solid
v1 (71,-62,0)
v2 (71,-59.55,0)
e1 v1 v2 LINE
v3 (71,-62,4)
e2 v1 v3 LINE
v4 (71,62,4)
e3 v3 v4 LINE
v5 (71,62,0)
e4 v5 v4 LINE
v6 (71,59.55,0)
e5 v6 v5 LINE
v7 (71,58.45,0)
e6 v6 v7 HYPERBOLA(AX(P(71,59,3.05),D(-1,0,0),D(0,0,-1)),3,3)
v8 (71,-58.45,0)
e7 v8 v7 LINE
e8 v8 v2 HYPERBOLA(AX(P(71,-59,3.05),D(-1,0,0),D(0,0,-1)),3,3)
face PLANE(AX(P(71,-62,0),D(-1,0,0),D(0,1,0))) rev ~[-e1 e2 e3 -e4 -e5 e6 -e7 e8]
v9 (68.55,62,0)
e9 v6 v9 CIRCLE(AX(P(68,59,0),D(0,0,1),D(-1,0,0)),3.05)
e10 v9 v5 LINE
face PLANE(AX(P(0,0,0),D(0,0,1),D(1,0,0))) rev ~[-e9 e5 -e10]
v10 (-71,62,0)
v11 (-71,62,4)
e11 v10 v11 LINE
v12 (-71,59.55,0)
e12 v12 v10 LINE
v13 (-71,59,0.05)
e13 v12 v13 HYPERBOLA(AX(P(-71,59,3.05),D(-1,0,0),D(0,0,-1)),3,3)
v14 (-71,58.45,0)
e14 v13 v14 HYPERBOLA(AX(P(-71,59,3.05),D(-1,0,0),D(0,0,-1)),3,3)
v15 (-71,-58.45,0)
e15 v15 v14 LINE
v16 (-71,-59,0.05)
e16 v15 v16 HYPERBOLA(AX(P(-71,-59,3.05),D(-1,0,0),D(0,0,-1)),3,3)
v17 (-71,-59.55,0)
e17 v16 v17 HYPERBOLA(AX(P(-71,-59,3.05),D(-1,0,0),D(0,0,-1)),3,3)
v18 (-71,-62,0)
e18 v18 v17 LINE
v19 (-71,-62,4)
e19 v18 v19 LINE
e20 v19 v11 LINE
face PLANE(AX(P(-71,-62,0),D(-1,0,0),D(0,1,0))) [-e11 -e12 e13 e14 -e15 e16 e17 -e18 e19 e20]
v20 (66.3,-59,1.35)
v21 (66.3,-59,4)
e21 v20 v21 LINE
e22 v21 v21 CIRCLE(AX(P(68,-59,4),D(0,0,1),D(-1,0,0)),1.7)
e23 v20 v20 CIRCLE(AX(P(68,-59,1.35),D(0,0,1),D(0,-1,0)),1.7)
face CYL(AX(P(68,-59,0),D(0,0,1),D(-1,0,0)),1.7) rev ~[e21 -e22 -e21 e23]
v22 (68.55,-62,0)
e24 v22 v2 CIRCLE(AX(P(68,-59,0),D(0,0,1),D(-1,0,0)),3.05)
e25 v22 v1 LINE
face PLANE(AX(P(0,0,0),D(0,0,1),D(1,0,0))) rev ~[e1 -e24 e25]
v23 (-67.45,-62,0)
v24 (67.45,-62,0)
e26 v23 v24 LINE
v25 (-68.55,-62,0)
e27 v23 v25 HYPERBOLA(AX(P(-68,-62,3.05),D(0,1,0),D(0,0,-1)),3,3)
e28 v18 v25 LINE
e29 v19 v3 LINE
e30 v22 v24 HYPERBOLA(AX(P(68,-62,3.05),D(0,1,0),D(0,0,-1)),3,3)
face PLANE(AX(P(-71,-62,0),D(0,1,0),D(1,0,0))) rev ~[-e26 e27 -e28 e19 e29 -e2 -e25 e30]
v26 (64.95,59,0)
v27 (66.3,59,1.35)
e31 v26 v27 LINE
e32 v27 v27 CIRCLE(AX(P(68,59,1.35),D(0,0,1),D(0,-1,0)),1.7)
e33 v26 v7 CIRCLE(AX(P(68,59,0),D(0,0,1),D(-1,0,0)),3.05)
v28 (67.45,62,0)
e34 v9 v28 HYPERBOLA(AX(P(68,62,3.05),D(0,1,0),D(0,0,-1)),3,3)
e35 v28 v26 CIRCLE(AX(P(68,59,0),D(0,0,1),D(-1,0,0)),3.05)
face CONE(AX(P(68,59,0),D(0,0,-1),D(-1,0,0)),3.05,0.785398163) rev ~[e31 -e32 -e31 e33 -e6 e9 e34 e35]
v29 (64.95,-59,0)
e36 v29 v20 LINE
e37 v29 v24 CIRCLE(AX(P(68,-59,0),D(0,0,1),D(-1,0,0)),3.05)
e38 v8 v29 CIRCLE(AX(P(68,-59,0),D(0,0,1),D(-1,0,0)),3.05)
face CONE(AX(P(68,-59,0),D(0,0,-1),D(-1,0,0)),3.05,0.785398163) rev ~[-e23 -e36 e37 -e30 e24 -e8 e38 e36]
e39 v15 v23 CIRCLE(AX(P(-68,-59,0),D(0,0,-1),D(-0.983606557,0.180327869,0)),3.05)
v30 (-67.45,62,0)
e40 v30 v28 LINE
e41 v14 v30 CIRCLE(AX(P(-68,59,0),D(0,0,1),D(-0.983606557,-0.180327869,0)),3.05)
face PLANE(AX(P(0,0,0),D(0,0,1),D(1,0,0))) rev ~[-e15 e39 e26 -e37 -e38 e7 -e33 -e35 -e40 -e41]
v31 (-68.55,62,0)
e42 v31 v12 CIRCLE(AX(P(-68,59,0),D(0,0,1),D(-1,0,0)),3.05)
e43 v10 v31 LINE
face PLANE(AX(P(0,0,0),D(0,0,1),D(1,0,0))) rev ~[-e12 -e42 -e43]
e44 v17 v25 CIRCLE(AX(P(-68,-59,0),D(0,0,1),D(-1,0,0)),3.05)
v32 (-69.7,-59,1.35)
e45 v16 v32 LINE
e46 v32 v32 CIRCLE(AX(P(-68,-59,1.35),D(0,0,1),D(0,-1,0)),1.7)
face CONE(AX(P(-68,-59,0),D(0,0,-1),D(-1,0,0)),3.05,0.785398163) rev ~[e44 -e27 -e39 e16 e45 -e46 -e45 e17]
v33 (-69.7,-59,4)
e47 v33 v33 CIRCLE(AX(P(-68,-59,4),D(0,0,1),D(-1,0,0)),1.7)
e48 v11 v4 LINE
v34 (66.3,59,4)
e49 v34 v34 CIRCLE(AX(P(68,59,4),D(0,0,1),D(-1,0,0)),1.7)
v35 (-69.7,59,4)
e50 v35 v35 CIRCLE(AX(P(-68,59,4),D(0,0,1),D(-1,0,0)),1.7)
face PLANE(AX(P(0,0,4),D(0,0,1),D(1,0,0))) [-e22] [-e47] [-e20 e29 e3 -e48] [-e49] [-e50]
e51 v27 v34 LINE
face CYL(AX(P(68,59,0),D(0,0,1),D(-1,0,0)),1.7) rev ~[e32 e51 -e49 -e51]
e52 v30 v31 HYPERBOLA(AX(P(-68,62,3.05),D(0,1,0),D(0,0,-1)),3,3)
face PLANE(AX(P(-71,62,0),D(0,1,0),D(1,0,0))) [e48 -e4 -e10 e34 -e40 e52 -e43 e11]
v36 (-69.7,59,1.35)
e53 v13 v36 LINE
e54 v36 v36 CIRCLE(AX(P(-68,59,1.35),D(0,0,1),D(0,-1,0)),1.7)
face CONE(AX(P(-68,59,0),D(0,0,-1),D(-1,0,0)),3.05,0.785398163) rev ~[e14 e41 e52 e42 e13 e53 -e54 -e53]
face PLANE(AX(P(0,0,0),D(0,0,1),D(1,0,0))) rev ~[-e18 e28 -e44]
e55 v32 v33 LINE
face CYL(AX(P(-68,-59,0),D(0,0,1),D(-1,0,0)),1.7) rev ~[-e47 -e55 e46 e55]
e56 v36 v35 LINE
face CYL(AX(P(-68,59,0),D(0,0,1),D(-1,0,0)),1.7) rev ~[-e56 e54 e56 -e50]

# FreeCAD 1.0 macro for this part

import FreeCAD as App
import Part
import Sketcher

V = App.Vector
Q = App.Units.Quantity


def add_polygon(sketch, points):
    """Adds a closed chain of lines whose ends are joined by coincident constraints."""
    first, n = sketch.GeometryCount, len(points)
    for a, b in zip(points, points[1:] + points[:1]):
        sketch.addGeometry(Part.LineSegment(App.Vector(*a, 0), App.Vector(*b, 0)), False)
    for i in range(n):
        sketch.addConstraint(Sketcher.Constraint("Coincident", first + i, 2, first + (i + 1) % n, 1))

doc = App.newDocument("Part")
body = doc.addObject("PartDesign::Body", "Body")

# Sketch on XY plane
sketch1 = doc.addObject("Sketcher::SketchObject", "Sketch")
body.addObject(sketch1)
sketch1.AttachmentSupport = (doc.XY_Plane, [""])
sketch1.MapMode = "FlatFace"
add_polygon(sketch1, [(-71, 62), (-71, -62), (71, -62), (71, 62)])  # lines 0-3
sketch1.addConstraint([
    Sketcher.Constraint("Vertical", 0),
    Sketcher.Constraint("Horizontal", 1),
    Sketcher.Constraint("Vertical", 2),
    Sketcher.Constraint("Horizontal", 3),
    Sketcher.Constraint("Symmetric", 0, 2, 2, 2, -1, 1),
    Sketcher.Constraint("DistanceX", 1, 1, 1, 2, Q("142 mm")),
    Sketcher.Constraint("DistanceY", 0, 2, 0, 1, Q("124 mm")),
])
pad1 = doc.addObject("PartDesign::Pad", "Pad")
body.addObject(pad1)
pad1.Profile = sketch1
pad1.Length = 4

# Sketch on XY plane
sketch2 = doc.addObject("Sketcher::SketchObject", "Sketch001")
body.addObject(sketch2)
sketch2.AttachmentSupport = (doc.XY_Plane, [""])
sketch2.MapMode = "FlatFace"
sketch2.addGeometry([
    Part.Circle(V(-68, -59, 0), V(0, 0, 1), 1.7),
    Part.Circle(V(-68, 59, 0), V(0, 0, 1), 1.7),
    Part.Circle(V(68, 59, 0), V(0, 0, 1), 1.7),
    Part.Circle(V(68, -59, 0), V(0, 0, 1), 1.7),
], False)
sketch2.addConstraint([
    Sketcher.Constraint("Equal", 0, 1),
    Sketcher.Constraint("Equal", 1, 2),
    Sketcher.Constraint("Equal", 2, 3),
    Sketcher.Constraint("Symmetric", 0, 3, 2, 3, -1, 1),
    Sketcher.Constraint("Symmetric", 1, 3, 3, 3, -1, 1),
    Sketcher.Constraint("Symmetric", 1, 3, 2, 3, -2),
    Sketcher.Constraint("Diameter", 0, Q("3.4 mm")),
    Sketcher.Constraint("DistanceX", 0, 3, -1, 1, Q("68 mm")),
    Sketcher.Constraint("DistanceY", 0, 3, -1, 1, Q("59 mm")),
])
doc.recompute()
hole = doc.addObject("PartDesign::Hole", "Hole")
body.addObject(hole)
hole.Profile = sketch2
hole.ThreadType = "None"
hole.Diameter = 3.4
hole.DepthType = "Dimension"
hole.Depth = 25
hole.DrillPoint = "Flat"
hole.HoleCutType = "Countersink"
hole.HoleCutDiameter = 6.1
hole.HoleCutCountersinkAngle = 90
hole.Reversed = True

doc.recompute()
